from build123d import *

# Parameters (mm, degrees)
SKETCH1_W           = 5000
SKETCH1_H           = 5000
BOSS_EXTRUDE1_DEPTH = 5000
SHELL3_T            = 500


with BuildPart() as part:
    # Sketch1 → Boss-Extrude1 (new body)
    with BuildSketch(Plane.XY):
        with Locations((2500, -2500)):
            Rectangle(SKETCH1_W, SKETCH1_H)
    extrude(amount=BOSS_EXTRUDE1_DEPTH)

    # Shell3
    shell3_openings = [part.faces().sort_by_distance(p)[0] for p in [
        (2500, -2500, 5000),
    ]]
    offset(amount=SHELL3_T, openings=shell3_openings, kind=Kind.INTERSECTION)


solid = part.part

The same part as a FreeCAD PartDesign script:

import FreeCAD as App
import Part
import Sketcher
Q = App.Units.Quantity


def faces_at(feature, points):
    """Names of the faces that lie closest to the given points."""
    faces = feature.Shape.Faces
    near = lambda p: min(range(len(faces)), key=lambda i: faces[i].distToShape(Part.Vertex(*p))[0])
    return sorted({f"Face{near(p) + 1}" for p in points})


def add_polygon(sketch, points):
    """Adds a closed chain of lines whose ends are joined by coincident constraints."""
    first, n = sketch.GeometryCount, len(points)
    for a, b in zip(points, points[1:] + points[:1]):
        sketch.addGeometry(Part.LineSegment(App.Vector(*a, 0), App.Vector(*b, 0)), False)
    for i in range(n):
        sketch.addConstraint(Sketcher.Constraint("Coincident", first + i, 2, first + (i + 1) % n, 1))

doc = App.newDocument("Part")
body = doc.addObject("PartDesign::Body", "Body")

# Sketch on XY plane
sketch1 = doc.addObject("Sketcher::SketchObject", "Sketch")
body.addObject(sketch1)
sketch1.AttachmentSupport = (doc.XY_Plane, [""])
sketch1.MapMode = "FlatFace"
add_polygon(sketch1, [(0, 0), (0, -5000), (5000, -5000), (5000, 0)])  # lines 0-3
sketch1.addConstraint(Sketcher.Constraint("Vertical", 0))
sketch1.addConstraint(Sketcher.Constraint("Horizontal", 1))
sketch1.addConstraint(Sketcher.Constraint("Vertical", 2))
sketch1.addConstraint(Sketcher.Constraint("Horizontal", 3))
sketch1.addConstraint(Sketcher.Constraint("Coincident", 3, 2, -1, 1))
sketch1.addConstraint(Sketcher.Constraint("Equal", 3, 0))
sketch1.addConstraint(Sketcher.Constraint("DistanceX", 1, 1, 1, 2, Q("5000 mm")))
pad1 = doc.addObject("PartDesign::Pad", "Pad")
body.addObject(pad1)
pad1.Profile = sketch1
pad1.Length = 5000
doc.recompute()

thickness = doc.addObject("PartDesign::Thickness", "Thickness")
body.addObject(thickness)
thickness.Base = (pad1, faces_at(pad1, [(2500, -2500, 5000)]))
thickness.Value = 500
thickness.Reversed = False
thickness.Join = "Intersection"

doc.recompute()
